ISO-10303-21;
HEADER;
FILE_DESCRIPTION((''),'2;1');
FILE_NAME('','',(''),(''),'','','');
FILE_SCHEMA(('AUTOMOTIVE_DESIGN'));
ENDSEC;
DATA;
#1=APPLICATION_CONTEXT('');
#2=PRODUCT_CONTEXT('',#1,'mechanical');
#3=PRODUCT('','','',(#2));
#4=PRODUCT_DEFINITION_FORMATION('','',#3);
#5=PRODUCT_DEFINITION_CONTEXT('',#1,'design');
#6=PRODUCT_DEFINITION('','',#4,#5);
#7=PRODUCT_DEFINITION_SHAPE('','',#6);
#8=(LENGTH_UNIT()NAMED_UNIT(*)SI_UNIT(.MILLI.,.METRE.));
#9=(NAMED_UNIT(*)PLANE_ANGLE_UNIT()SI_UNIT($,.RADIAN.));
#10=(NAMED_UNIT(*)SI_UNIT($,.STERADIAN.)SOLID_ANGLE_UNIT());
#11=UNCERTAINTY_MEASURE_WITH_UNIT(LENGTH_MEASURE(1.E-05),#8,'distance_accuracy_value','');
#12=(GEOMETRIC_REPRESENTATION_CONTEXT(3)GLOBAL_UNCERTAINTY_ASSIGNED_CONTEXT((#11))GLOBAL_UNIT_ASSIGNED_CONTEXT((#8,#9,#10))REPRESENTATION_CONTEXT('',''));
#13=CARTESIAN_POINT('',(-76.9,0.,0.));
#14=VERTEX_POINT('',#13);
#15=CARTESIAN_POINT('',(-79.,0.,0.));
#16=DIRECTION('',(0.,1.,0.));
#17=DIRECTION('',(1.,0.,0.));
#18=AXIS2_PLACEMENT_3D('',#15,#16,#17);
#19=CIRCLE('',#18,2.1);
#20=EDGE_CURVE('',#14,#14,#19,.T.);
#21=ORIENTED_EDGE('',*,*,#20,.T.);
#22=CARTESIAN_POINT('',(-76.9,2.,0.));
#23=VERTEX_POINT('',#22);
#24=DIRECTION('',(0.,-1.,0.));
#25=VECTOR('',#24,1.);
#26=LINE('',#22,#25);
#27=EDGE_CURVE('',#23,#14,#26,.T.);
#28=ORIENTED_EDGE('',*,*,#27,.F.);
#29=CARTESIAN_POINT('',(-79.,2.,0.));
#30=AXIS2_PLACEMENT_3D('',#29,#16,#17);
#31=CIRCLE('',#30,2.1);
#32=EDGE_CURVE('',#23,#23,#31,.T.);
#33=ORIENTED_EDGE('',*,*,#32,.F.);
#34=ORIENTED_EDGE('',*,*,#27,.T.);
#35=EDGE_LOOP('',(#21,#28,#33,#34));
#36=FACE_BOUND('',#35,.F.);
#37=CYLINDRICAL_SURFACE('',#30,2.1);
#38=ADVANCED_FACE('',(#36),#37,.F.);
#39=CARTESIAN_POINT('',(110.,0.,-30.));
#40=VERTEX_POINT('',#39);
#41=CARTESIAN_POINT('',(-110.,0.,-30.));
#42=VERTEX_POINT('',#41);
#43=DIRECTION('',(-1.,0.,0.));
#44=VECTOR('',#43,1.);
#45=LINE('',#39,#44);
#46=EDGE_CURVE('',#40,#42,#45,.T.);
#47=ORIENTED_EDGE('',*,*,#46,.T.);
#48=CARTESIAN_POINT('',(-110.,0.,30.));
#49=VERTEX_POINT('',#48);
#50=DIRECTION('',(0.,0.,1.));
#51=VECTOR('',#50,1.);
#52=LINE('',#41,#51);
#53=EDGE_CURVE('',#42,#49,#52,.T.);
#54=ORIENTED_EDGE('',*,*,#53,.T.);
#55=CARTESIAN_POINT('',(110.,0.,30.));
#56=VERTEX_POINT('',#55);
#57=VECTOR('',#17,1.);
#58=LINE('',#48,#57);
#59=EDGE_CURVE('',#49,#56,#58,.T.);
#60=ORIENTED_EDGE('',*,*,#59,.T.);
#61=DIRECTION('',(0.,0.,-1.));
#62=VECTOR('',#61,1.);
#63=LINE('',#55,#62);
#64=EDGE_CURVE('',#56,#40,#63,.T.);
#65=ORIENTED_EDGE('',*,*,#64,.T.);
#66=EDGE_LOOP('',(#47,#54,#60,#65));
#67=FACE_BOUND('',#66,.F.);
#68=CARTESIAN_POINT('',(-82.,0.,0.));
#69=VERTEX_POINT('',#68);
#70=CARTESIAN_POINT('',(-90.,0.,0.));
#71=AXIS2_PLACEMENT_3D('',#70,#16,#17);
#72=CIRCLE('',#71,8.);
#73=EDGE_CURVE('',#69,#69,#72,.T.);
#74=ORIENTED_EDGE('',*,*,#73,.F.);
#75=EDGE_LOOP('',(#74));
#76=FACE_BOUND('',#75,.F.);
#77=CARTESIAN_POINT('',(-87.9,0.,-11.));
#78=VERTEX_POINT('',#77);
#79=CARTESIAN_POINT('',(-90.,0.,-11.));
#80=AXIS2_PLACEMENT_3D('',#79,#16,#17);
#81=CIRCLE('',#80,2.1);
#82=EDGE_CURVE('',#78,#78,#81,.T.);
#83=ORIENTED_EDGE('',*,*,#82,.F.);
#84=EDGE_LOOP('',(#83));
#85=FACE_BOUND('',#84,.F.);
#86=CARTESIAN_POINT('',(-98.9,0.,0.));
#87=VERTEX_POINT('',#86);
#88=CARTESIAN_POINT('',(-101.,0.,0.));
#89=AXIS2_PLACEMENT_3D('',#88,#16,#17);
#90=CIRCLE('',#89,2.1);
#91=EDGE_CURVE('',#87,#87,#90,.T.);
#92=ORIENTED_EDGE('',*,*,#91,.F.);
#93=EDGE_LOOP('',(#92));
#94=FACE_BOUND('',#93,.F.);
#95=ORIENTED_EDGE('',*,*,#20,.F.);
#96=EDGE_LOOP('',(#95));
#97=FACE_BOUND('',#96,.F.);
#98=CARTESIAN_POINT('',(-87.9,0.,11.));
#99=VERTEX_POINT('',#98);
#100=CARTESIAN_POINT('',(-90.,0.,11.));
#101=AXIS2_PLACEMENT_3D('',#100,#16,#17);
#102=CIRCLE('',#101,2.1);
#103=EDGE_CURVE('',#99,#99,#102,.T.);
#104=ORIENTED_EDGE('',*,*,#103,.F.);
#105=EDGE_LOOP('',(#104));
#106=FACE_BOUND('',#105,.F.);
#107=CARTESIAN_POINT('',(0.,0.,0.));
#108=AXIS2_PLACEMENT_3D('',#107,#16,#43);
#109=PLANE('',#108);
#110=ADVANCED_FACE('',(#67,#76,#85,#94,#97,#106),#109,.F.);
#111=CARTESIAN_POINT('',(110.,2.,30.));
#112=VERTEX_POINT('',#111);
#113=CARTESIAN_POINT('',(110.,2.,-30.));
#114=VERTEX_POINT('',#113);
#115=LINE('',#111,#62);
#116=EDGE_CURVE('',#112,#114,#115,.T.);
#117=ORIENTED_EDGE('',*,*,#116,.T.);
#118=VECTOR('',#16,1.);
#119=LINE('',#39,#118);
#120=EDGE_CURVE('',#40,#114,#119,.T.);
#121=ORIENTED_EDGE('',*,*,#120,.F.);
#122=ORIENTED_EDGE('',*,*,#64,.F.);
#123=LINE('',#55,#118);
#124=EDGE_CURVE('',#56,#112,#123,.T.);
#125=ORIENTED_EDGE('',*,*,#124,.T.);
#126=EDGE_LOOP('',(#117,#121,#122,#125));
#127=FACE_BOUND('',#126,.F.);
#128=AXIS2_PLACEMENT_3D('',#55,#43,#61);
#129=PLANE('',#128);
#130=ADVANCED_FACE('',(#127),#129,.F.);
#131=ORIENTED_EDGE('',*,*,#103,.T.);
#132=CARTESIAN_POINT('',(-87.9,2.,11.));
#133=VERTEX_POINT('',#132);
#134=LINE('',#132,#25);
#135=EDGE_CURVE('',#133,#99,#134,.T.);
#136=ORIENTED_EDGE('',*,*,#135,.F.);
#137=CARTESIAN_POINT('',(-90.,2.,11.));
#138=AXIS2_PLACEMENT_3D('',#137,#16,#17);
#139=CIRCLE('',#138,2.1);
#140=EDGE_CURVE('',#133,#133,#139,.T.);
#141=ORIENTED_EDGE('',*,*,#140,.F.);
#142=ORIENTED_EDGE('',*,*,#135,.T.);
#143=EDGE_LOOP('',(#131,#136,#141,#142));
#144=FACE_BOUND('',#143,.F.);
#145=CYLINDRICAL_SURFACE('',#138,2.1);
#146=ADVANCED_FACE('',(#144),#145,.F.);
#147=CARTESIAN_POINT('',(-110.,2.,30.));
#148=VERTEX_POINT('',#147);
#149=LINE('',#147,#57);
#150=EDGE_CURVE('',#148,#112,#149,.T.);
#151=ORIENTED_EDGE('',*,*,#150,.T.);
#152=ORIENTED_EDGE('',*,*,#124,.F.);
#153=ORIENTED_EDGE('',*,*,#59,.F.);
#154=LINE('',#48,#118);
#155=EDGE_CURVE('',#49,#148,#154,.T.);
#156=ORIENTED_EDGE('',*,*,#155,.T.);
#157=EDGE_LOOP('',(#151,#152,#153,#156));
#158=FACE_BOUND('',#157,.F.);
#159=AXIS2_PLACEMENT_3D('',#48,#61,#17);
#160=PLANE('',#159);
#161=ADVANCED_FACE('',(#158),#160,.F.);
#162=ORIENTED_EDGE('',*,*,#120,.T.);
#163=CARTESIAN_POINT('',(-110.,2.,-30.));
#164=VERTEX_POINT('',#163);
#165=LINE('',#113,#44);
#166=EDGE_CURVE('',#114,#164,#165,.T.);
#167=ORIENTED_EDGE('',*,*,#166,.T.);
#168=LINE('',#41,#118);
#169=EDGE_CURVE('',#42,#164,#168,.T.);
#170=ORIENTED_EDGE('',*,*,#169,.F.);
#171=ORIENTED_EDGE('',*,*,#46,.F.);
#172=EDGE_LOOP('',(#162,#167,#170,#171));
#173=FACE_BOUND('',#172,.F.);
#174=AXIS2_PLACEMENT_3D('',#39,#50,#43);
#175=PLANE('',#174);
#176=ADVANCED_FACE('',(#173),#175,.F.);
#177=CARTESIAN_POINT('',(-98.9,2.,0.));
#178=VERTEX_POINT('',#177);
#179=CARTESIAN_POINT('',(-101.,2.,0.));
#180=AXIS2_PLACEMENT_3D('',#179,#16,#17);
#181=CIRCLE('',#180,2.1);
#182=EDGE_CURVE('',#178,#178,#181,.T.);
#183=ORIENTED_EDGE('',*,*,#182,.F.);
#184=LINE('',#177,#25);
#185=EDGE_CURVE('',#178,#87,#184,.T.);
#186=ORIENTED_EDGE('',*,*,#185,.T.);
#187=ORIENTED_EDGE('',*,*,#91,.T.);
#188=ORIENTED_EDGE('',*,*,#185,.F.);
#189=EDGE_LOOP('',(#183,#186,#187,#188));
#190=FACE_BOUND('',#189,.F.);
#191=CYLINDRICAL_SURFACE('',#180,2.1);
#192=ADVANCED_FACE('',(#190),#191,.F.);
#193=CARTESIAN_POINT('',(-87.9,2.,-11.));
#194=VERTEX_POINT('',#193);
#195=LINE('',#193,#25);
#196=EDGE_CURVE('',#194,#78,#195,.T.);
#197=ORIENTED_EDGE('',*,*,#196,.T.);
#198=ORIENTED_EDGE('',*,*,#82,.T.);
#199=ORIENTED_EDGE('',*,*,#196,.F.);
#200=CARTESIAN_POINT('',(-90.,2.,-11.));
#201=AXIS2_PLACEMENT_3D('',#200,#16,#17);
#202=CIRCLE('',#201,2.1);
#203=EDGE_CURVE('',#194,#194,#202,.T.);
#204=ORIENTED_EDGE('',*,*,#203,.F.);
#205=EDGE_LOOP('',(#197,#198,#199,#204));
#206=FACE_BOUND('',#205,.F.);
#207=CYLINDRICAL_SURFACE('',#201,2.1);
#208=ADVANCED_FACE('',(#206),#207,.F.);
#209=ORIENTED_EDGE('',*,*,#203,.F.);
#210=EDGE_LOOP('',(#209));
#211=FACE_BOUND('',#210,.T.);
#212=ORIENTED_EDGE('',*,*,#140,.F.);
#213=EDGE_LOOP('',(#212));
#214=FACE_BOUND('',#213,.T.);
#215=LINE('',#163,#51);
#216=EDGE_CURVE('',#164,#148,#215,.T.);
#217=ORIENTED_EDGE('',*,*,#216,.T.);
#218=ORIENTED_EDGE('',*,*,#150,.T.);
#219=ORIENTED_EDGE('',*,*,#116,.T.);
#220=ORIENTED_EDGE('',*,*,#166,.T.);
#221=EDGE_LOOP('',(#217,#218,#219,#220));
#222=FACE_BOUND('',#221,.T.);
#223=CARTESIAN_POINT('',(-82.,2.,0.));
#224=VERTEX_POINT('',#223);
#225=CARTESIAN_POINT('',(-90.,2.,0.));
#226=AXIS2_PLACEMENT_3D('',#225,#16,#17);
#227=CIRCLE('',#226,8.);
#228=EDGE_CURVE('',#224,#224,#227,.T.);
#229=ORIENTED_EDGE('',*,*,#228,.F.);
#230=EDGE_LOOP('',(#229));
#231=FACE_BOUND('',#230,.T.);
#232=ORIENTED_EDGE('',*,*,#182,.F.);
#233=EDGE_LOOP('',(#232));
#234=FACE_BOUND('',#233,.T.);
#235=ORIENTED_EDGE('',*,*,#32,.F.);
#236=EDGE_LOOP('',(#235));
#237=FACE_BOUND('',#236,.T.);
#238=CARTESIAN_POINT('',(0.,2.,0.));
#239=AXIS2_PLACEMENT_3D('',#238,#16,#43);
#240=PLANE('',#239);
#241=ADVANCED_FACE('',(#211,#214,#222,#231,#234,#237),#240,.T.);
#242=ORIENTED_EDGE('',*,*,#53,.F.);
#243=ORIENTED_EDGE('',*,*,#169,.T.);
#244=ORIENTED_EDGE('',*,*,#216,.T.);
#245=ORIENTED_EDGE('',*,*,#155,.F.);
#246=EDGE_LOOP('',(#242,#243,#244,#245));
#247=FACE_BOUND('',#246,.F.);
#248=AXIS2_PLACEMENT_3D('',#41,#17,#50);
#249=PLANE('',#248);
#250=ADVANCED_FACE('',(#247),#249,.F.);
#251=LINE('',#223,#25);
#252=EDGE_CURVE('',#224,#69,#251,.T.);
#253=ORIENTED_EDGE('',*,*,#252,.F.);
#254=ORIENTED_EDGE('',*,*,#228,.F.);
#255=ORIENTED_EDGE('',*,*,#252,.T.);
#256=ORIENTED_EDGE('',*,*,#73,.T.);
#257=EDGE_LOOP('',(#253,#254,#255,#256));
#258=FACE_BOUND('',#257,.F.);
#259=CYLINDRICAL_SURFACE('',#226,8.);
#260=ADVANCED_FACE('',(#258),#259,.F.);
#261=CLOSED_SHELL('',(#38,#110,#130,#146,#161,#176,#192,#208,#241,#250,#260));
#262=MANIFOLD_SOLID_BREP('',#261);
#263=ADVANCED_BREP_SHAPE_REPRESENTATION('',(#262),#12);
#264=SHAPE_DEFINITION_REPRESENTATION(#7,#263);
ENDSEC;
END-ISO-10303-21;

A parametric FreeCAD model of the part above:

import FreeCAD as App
import Part
import Sketcher
from FreeCAD import Vector
Q = App.Units.Quantity

doc = App.newDocument("Part")
body = doc.addObject("PartDesign::Body", "Body")

# Sketch on XZ plane
sketch1 = doc.addObject("Sketcher::SketchObject", "Sketch")
body.addObject(sketch1)
sketch1.AttachmentSupport = (doc.XZ_Plane, [""])
sketch1.MapMode = "FlatFace"
sketch1.addGeometry([
    Part.LineSegment(Vector(110, 30, 0), Vector(110, -30, 0)),
    Part.LineSegment(Vector(110, -30, 0), Vector(-110, -30, 0)),
    Part.LineSegment(Vector(-110, -30, 0), Vector(-110, 30, 0)),
    Part.LineSegment(Vector(-110, 30, 0), Vector(110, 30, 0)),
], False)
sketch1.addConstraint([
    Sketcher.Constraint("Coincident", 0, 2, 1, 1),
    Sketcher.Constraint("Coincident", 1, 2, 2, 1),
    Sketcher.Constraint("Coincident", 2, 2, 3, 1),
    Sketcher.Constraint("Coincident", 3, 2, 0, 1),
    Sketcher.Constraint("Vertical", 0),
    Sketcher.Constraint("Horizontal", 1),
    Sketcher.Constraint("Vertical", 2),
    Sketcher.Constraint("Horizontal", 3),
    Sketcher.Constraint("Symmetric", 0, 2, 2, 2, -1, 1),
    Sketcher.Constraint("DistanceX", 1, 2, 1, 1, Q("220 mm")),
    Sketcher.Constraint("DistanceY", 0, 2, 0, 1, Q("60 mm")),
])
pad1 = doc.addObject("PartDesign::Pad", "Pad")
body.addObject(pad1)
pad1.Profile = sketch1
pad1.Length = 2
pad1.Reversed = True

# Sketch on XZ plane
sketch2 = doc.addObject("Sketcher::SketchObject", "Sketch001")
body.addObject(sketch2)
sketch2.AttachmentSupport = (doc.XZ_Plane, [""])
sketch2.MapMode = "FlatFace"
sketch2.AttachmentOffset = App.Placement(Vector(0, 0, -2), App.Rotation())
sketch2.addGeometry([
    Part.Circle(Vector(-90, 0, 0), Vector(0, 0, 1), 8),  # 0
    Part.Circle(Vector(-101, 0, 0), Vector(0, 0, 1), 2.1),  # 1
    Part.Circle(Vector(-90, -11, 0), Vector(0, 0, 1), 2.1),  # 2
    Part.Circle(Vector(-79, 0, 0), Vector(0, 0, 1), 2.1),  # 3
    Part.Circle(Vector(-90, 11, 0), Vector(0, 0, 1), 2.1),  # 4
], False)
sketch2.addConstraint([
    Sketcher.Constraint("Equal", 1, 2),
    Sketcher.Constraint("Equal", 2, 3),
    Sketcher.Constraint("Equal", 3, 4),
    Sketcher.Constraint("Symmetric", 2, 3, 4, 3, -1),
    Sketcher.Constraint("PointOnObject", 0, 3, -1),
    Sketcher.Constraint("PointOnObject", 1, 3, -1),
    Sketcher.Constraint("PointOnObject", 3, 3, -1),
    Sketcher.Constraint("Vertical", 0, 3, 2, 3),
    Sketcher.Constraint("Diameter", 0, Q("16 mm")),
    Sketcher.Constraint("Diameter", 1, Q("4.2 mm")),
    Sketcher.Constraint("DistanceX", 0, 3, -1, 1, Q("90 mm")),
    Sketcher.Constraint("DistanceY", 2, 3, -1, 1, Q("11 mm")),
    Sketcher.Constraint("DistanceX", 1, 3, 0, 3, Q("11 mm")),
    Sketcher.Constraint("DistanceX", 0, 3, 3, 3, Q("11 mm")),
])
pocket1 = doc.addObject("PartDesign::Pocket", "Pocket")
body.addObject(pocket1)
pocket1.Profile = sketch2
pocket1.Length = 8
pocket1.Reversed = True

doc.recompute()
